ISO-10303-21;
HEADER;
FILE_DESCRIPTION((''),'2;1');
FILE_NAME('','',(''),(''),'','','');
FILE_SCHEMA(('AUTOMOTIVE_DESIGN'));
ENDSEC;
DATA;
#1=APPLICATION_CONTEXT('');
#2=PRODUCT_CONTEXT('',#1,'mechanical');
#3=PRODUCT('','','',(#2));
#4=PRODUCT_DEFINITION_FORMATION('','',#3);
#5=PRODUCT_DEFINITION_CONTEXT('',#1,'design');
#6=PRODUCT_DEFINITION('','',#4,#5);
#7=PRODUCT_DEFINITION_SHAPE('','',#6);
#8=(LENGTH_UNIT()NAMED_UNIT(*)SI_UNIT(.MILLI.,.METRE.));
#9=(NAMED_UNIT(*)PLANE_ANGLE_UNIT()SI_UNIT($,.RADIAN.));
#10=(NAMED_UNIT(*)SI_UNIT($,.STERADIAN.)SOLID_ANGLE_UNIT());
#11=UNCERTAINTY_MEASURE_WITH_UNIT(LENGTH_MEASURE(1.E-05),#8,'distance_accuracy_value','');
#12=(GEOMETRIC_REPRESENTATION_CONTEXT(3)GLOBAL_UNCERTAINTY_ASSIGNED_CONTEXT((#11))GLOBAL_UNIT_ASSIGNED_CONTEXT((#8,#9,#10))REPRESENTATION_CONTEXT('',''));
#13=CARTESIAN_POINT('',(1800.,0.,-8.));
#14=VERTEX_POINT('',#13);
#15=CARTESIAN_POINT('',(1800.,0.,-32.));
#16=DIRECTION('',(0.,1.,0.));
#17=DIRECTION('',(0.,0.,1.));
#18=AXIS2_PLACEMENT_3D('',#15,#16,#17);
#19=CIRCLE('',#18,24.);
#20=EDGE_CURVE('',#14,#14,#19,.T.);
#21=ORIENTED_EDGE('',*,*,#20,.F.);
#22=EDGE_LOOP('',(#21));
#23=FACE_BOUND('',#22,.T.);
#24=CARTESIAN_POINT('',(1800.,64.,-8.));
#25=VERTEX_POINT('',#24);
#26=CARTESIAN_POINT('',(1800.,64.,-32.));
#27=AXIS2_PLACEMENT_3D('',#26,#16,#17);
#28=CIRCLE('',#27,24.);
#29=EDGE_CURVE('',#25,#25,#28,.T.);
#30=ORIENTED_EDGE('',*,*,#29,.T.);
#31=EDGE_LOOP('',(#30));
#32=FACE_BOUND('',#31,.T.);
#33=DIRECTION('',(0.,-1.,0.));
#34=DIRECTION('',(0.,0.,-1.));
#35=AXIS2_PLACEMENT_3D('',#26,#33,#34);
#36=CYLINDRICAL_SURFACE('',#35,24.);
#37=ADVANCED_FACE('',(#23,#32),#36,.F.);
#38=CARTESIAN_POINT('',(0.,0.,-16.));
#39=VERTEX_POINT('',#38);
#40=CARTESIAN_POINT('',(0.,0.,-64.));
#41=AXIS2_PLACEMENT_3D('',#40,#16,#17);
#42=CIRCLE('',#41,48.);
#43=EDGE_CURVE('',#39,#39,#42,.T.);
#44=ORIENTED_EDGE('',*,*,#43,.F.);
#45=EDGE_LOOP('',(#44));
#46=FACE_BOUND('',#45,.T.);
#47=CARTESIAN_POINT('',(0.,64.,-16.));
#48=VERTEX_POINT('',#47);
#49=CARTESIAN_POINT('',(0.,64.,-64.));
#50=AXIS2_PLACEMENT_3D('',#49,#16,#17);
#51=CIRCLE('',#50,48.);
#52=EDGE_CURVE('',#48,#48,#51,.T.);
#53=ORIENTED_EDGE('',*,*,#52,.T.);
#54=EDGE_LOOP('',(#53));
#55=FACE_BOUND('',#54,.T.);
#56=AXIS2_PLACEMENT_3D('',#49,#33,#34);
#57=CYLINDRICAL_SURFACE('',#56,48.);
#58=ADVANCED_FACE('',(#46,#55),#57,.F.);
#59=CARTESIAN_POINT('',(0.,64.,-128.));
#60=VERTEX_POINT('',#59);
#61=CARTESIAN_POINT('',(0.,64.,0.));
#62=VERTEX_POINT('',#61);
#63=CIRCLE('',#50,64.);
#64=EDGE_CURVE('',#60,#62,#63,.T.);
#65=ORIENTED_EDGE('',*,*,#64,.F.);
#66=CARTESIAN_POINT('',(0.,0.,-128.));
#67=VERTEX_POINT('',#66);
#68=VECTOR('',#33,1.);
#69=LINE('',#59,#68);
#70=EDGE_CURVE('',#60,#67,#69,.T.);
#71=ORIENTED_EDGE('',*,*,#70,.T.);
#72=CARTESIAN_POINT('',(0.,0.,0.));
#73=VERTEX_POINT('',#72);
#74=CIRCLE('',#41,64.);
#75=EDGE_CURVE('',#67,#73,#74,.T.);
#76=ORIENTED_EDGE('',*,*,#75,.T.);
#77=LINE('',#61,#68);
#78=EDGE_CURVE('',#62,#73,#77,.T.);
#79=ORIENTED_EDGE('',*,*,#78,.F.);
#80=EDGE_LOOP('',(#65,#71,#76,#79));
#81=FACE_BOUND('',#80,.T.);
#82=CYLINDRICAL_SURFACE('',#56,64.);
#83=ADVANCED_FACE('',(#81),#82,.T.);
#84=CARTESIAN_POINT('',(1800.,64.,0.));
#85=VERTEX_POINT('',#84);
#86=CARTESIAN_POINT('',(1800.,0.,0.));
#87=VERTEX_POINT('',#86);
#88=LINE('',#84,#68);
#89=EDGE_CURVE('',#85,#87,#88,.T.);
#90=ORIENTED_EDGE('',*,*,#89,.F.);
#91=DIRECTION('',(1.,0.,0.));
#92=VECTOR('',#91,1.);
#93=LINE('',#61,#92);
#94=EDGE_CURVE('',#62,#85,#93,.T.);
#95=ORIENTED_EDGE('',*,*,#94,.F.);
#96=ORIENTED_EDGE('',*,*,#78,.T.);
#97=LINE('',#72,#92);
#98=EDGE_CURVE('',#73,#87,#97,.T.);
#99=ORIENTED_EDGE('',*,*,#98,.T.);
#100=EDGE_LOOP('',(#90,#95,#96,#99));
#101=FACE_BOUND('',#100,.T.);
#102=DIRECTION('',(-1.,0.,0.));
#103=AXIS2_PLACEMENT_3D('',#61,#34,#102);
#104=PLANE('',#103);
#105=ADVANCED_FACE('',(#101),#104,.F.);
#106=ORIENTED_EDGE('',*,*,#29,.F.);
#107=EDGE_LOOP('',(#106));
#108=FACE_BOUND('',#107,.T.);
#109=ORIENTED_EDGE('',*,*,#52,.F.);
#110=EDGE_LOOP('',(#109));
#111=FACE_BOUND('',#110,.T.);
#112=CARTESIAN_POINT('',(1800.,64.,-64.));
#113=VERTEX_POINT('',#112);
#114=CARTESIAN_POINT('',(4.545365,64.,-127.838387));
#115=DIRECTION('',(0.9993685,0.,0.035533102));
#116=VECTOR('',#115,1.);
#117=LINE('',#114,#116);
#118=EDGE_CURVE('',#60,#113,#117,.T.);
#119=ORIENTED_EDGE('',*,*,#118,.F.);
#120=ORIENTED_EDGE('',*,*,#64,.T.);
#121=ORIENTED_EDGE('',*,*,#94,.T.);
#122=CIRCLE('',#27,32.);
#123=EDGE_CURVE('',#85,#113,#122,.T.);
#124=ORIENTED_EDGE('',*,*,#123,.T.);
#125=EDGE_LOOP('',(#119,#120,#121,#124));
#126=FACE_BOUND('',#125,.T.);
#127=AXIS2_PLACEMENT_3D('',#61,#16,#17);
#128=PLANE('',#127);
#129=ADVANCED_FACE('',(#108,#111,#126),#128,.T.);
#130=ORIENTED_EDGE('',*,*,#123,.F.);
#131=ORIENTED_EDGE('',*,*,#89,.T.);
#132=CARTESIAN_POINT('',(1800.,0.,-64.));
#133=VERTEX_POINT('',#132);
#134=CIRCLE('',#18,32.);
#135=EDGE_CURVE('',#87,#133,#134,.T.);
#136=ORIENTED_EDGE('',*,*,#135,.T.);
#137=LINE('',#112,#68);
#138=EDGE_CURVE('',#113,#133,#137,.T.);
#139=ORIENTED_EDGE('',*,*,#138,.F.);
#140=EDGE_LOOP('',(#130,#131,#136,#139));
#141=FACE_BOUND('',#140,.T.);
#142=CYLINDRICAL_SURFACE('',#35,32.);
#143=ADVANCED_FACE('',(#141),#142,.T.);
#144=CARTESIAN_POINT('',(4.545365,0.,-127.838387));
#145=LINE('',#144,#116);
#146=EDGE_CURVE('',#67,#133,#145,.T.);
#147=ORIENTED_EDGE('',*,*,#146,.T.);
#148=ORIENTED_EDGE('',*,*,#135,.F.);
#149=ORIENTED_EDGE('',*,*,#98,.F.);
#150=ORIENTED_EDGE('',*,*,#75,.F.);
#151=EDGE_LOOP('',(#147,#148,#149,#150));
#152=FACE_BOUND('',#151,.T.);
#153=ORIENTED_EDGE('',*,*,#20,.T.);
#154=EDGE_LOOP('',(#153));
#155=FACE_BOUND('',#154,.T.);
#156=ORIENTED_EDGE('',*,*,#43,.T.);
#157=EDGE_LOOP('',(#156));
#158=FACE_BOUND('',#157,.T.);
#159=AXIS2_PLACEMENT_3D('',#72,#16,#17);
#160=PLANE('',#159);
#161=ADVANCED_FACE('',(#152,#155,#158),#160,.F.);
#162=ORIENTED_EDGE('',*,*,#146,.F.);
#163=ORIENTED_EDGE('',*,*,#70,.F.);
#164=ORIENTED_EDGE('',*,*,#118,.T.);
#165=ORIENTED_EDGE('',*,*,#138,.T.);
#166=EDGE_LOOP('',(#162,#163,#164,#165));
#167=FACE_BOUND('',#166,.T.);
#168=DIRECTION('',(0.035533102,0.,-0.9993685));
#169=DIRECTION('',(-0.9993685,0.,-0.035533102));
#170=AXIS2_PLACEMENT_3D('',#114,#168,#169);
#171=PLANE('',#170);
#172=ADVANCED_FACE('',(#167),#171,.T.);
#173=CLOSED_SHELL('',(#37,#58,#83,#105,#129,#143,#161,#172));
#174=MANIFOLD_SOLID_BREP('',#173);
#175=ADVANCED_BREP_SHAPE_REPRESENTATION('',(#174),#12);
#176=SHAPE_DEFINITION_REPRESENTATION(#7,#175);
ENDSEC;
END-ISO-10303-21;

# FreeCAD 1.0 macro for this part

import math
import FreeCAD as App
import Part
import Sketcher

doc = App.newDocument("Part")
params = doc.addObject("Spreadsheet::Sheet", "Params")
for row, (alias, value) in enumerate([
    ("sketch1_radius", "64 mm"),
    ("sketch1_radius2", "24 mm"),
    ("sketch1_radius3", "48 mm"),
    ("sketch1_width", "1800 mm"),
    ("pad1_length", "64 mm"),
], start=1):
    params.set(f"A{row}", alias)
    params.set(f"B{row}", "=" + value)
    params.setAlias(f"B{row}", alias)

body = doc.addObject("PartDesign::Body", "Body")

# Sketch on XZ plane
sketch1 = body.newObject("Sketcher::SketchObject", "Sketch")
sketch1.AttachmentSupport = (doc.getObject("XZ_Plane"), [""])
sketch1.MapMode = "FlatFace"
sketch1.addGeometry([
    Part.LineSegment(App.Vector(4.5, -127.8, 0), App.Vector(0, -128, 0)),  # 0
    Part.ArcOfCircle(Part.Circle(App.Vector(0, -64, 0), App.Vector(0, 0, 1), 64), math.radians(90), math.radians(270)),  # 1
    Part.LineSegment(App.Vector(0, 0, 0), App.Vector(1800, 0, 0)),  # 2
    Part.ArcOfCircle(Part.Circle(App.Vector(1800, -32, 0), App.Vector(0, 0, 1), 32), math.radians(0), math.radians(90)),  # 3
    Part.ArcOfCircle(Part.Circle(App.Vector(1800, -32, 0), App.Vector(0, 0, 1), 32), math.radians(-90), math.radians(0)),  # 4
    Part.LineSegment(App.Vector(1800, -64, 0), App.Vector(4.5, -127.8, 0)),  # 5
    Part.ArcOfCircle(Part.Circle(App.Vector(1800, -32, 0), App.Vector(0, 0, 1), 24), math.radians(90), math.radians(270)),  # 6
    Part.ArcOfCircle(Part.Circle(App.Vector(1800, -32, 0), App.Vector(0, 0, 1), 24), math.radians(-90), math.radians(0)),  # 7
    Part.ArcOfCircle(Part.Circle(App.Vector(1800, -32, 0), App.Vector(0, 0, 1), 24), math.radians(0), math.radians(90)),  # 8
    Part.ArcOfCircle(Part.Circle(App.Vector(0, -64, 0), App.Vector(0, 0, 1), 48), math.radians(0), math.radians(90)),  # 9
    Part.ArcOfCircle(Part.Circle(App.Vector(0, -64, 0), App.Vector(0, 0, 1), 48), math.radians(90), math.radians(270)),  # 10
    Part.ArcOfCircle(Part.Circle(App.Vector(0, -64, 0), App.Vector(0, 0, 1), 48), math.radians(-90), math.radians(0)),  # 11
], False)
sketch1.addConstraint([
    Sketcher.Constraint("Coincident", 0, 2, 1, 2),
    Sketcher.Constraint("Tangent", 1, 1, 2, 1),
    Sketcher.Constraint("Tangent", 2, 2, 3, 2),
    Sketcher.Constraint("Tangent", 3, 1, 4, 2),
    Sketcher.Constraint("Coincident", 4, 1, 5, 1),
    Sketcher.Constraint("Coincident", 5, 2, 0, 1),
    Sketcher.Constraint("Tangent", 6, 2, 7, 1),
    Sketcher.Constraint("Tangent", 7, 2, 8, 1),
    Sketcher.Constraint("Tangent", 8, 2, 6, 1),
    Sketcher.Constraint("Tangent", 9, 2, 10, 1),
    Sketcher.Constraint("Tangent", 10, 2, 11, 1),
    Sketcher.Constraint("Tangent", 11, 2, 9, 1),
    Sketcher.Constraint("Horizontal", 2),
    Sketcher.Constraint("Coincident", 1, 1, -1, 1),
    Sketcher.Constraint("Coincident", 6, 3, 3, 3),
    Sketcher.Constraint("Coincident", 9, 3, 1, 3),
    Sketcher.Constraint("Equal", 3, 4),
    Sketcher.Constraint("PointOnObject", 0, 2, -2),
    Sketcher.Constraint("PointOnObject", 9, 2, -2),
    Sketcher.Constraint("PointOnObject", 10, 2, -2),
    Sketcher.Constraint("Parallel", 0, 5),
    Sketcher.Constraint("Horizontal", 8, 3, 3, 1),
    Sketcher.Constraint("Horizontal", 11, 3, 4, 1),
    Sketcher.Constraint("Horizontal", 3, 1, 7, 2),
    Sketcher.Constraint("Horizontal", 4, 1, 11, 2),
    Sketcher.Constraint("Vertical", 2, 2, 4, 1),
    Sketcher.Constraint("Vertical", 4, 1, 6, 2),
    Sketcher.Constraint("Vertical", 6, 2, 8, 2),
    Sketcher.Constraint("Radius", 1, 64.0),
    Sketcher.Constraint("Radius", 6, 24.0),
    Sketcher.Constraint("Radius", 9, 48.0),
    Sketcher.Constraint("DistanceX", 2, 1, 2, 2, 1800.0),
    Sketcher.Constraint("Distance", 5, 1796.589181),
])
sketch1.setExpression("Constraints[28]", "Params.sketch1_radius")
sketch1.setExpression("Constraints[29]", "Params.sketch1_radius2")
sketch1.setExpression("Constraints[30]", "Params.sketch1_radius3")
sketch1.setExpression("Constraints[31]", "Params.sketch1_width")
pad1 = body.newObject("PartDesign::Pad", "Pad")
pad1.Profile = sketch1
pad1.setExpression("Length", "Params.pad1_length")
pad1.Reversed = True

doc.recompute()
